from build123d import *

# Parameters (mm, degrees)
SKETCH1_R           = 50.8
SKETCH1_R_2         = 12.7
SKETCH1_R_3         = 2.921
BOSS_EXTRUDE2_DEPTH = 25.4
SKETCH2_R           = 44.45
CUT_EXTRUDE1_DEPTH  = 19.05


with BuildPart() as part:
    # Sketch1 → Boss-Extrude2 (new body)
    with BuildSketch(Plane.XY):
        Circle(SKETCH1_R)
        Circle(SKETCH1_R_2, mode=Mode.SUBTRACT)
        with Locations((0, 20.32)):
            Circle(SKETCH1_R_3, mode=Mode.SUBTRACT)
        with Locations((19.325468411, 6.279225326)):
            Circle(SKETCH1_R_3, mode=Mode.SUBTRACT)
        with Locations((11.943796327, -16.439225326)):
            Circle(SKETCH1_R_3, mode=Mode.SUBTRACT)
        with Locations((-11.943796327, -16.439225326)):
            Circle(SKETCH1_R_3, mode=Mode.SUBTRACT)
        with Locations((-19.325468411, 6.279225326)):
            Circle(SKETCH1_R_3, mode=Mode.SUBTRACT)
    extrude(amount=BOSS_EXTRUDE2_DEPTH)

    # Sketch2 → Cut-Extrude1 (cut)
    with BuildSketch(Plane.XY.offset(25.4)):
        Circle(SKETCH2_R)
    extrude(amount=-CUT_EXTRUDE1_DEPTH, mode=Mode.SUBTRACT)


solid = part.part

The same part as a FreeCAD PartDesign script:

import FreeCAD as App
import Part
import Sketcher
from FreeCAD import Vector
Q = App.Units.Quantity

doc = App.newDocument("Part")
body = doc.addObject("PartDesign::Body", "Body")

# Sketch on XY plane
sketch1 = body.newObject("Sketcher::SketchObject", "Sketch")
sketch1.AttachmentSupport = (doc.getObject("XY_Plane"), [""])
sketch1.MapMode = "FlatFace"
sketch1.addGeometry([
    Part.Circle(Vector(0, 0, 0), Vector(0, 0, 1), 50.8),  # 0
    Part.Circle(Vector(-11.9, -16.4, 0), Vector(0, 0, 1), 2.9),  # 1
    Part.Circle(Vector(11.9, -16.4, 0), Vector(0, 0, 1), 2.9),  # 2
    Part.Circle(Vector(0, 0, 0), Vector(0, 0, 1), 12.7),  # 3
    Part.Circle(Vector(-19.3, 6.3, 0), Vector(0, 0, 1), 2.9),  # 4
    Part.Circle(Vector(19.3, 6.3, 0), Vector(0, 0, 1), 2.9),  # 5
    Part.Circle(Vector(0, 20.3, 0), Vector(0, 0, 1), 2.9),  # 6
], False)
sketch1.addConstraint([
    Sketcher.Constraint("Coincident", 0, 3, -1, 1),
    Sketcher.Constraint("Coincident", 3, 3, -1, 1),
    Sketcher.Constraint("Equal", 1, 2),
    Sketcher.Constraint("Equal", 2, 4),
    Sketcher.Constraint("Equal", 4, 5),
    Sketcher.Constraint("Equal", 5, 6),
    Sketcher.Constraint("Symmetric", 1, 3, 2, 3, -2),
    Sketcher.Constraint("Symmetric", 4, 3, 5, 3, -2),
    Sketcher.Constraint("PointOnObject", 6, 3, -2),
    Sketcher.Constraint("Diameter", 0, Q("4 in")),
    Sketcher.Constraint("Diameter", 3, Q("1 in")),
    Sketcher.Constraint("Diameter", 1, Q("0.23 in")),
    Sketcher.Constraint("DistanceY", -1, 1, 6, 3, Q("0.8 in")),
    Sketcher.Constraint("DistanceX", 4, 3, -1, 1, 19.325468),
    Sketcher.Constraint("DistanceY", 1, 3, 4, 3, 22.718451),
    Sketcher.Constraint("DistanceX", 1, 3, -1, 1, 11.943796),
    Sketcher.Constraint("DistanceY", 1, 3, -1, 1, 16.439225),
])
pad1 = body.newObject("PartDesign::Pad", "Pad")
pad1.Profile = sketch1
pad1.Length = Q("1 in")

# Sketch on XY plane
sketch2 = body.newObject("Sketcher::SketchObject", "Sketch001")
sketch2.AttachmentSupport = (doc.getObject("XY_Plane"), [""])
sketch2.MapMode = "FlatFace"
sketch2.AttachmentOffset = App.Placement(Vector(0, 0, 1 * 25.4), App.Rotation())
sketch2.addGeometry(Part.Circle(Vector(0, 0, 0), Vector(0, 0, 1), 44), False)
sketch2.addConstraint([
    Sketcher.Constraint("Coincident", 0, 3, -1, 1),
    Sketcher.Constraint("Diameter", 0, Q("3.5 in")),
])
pocket1 = body.newObject("PartDesign::Pocket", "Pocket")
pocket1.Profile = sketch2
pocket1.Length = Q("0.75 in")

doc.recompute()
